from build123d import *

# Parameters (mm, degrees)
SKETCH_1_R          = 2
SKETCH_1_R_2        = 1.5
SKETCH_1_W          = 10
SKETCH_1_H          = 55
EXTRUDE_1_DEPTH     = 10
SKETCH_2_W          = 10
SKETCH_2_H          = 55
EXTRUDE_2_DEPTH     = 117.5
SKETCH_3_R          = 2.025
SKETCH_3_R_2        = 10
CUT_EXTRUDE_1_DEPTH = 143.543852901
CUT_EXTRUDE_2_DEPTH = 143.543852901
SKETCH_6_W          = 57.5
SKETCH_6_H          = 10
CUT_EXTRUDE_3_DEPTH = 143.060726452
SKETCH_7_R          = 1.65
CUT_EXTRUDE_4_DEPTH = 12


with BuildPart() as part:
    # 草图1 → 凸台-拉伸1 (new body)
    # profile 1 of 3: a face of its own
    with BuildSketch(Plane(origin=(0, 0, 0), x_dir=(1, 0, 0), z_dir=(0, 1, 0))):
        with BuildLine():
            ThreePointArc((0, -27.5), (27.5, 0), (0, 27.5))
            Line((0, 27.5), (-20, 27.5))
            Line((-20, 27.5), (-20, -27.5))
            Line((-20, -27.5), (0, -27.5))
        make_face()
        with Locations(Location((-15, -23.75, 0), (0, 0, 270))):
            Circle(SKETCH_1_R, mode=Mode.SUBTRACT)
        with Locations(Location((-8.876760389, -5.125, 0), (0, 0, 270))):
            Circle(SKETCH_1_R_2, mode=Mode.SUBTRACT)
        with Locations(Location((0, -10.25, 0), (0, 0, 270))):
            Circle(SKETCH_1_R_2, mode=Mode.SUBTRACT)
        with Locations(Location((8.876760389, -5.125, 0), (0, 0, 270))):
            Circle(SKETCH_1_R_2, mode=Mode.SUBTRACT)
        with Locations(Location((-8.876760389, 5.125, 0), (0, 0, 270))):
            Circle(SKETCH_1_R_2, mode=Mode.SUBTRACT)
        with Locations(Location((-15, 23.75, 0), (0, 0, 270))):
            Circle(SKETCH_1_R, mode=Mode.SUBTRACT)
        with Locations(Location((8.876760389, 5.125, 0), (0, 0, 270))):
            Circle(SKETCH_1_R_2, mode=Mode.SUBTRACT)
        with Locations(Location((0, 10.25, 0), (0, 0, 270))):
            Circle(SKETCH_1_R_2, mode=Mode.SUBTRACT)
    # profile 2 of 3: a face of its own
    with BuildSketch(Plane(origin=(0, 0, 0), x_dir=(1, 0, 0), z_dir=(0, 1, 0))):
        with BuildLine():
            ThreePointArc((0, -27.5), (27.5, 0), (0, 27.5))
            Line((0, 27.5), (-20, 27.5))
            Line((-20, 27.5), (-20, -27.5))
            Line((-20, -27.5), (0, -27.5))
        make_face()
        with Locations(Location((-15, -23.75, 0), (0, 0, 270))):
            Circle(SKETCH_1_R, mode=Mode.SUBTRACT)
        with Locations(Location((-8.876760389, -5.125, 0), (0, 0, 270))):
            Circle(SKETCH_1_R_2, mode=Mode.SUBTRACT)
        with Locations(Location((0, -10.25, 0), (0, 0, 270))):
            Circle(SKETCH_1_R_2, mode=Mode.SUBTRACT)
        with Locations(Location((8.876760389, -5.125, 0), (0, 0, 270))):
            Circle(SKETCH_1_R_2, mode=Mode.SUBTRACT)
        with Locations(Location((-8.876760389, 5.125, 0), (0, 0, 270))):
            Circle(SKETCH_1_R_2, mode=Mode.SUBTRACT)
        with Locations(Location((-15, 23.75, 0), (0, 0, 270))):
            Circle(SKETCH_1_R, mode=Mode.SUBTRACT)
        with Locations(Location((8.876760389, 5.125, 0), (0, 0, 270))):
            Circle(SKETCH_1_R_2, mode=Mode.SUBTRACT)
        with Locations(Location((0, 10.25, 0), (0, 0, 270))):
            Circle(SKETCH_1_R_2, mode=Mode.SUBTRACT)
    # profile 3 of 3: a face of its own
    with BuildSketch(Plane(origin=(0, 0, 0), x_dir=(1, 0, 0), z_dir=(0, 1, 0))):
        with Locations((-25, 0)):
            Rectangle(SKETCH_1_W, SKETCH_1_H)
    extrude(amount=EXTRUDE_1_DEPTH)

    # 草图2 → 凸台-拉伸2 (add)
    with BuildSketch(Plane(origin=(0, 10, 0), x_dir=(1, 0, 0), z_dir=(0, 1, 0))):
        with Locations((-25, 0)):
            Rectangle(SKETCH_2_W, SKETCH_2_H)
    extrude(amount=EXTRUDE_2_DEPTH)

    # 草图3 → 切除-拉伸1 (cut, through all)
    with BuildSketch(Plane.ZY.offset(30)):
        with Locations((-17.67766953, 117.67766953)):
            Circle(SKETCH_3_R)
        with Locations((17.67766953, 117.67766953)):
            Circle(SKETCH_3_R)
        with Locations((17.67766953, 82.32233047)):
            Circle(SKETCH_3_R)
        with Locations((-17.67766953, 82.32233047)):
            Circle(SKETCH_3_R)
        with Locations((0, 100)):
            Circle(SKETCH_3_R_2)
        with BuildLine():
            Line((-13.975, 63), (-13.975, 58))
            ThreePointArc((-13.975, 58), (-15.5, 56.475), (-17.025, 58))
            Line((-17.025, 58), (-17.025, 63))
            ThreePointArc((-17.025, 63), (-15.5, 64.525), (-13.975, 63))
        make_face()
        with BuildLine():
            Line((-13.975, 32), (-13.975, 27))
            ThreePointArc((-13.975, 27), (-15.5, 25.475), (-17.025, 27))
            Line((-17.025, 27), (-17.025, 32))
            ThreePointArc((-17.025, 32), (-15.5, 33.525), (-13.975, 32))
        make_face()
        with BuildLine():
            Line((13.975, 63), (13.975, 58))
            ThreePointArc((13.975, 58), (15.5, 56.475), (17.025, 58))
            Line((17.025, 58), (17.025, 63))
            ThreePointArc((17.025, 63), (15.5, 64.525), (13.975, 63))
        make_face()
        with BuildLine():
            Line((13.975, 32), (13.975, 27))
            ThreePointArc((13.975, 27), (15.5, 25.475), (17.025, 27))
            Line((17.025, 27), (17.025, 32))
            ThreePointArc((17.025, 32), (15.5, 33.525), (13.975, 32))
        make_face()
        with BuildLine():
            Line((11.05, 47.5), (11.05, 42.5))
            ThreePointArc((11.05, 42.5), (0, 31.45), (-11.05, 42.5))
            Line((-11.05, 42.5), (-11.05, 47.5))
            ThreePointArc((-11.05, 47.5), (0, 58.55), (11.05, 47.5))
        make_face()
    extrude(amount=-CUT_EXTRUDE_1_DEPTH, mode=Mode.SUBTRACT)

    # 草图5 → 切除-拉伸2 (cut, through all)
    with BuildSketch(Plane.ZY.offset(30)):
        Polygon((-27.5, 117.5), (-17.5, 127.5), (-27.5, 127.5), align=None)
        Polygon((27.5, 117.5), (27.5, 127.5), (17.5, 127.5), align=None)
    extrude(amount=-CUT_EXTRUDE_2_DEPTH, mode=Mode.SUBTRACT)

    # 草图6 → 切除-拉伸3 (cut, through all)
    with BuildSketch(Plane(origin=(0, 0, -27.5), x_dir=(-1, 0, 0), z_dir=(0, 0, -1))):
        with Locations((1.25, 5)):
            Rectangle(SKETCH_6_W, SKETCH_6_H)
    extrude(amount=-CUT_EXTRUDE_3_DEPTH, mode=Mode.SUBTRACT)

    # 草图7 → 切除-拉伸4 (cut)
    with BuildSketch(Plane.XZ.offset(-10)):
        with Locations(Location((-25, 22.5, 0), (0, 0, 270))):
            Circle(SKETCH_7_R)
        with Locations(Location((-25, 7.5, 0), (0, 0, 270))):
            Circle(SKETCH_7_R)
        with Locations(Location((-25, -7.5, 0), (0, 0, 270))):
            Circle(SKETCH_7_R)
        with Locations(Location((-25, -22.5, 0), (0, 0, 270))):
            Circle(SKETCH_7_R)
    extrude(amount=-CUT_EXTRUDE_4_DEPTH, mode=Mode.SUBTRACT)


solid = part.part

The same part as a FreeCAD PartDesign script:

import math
import FreeCAD as App
import Part
import Sketcher
Q = App.Units.Quantity

doc = App.newDocument("Part")
body = doc.addObject("PartDesign::Body", "Body")

# Sketch on XZ plane
sketch1 = doc.addObject("Sketcher::SketchObject", "Sketch")
body.addObject(sketch1)
sketch1.AttachmentSupport = (doc.XZ_Plane, [""])
sketch1.MapMode = "FlatFace"
sketch1.addGeometry(Part.ArcOfCircle(Part.Circle(App.Vector(0, 0, 0), App.Vector(0, 0, 1), 27.5), math.radians(-90), math.radians(90)), False)
sketch1.addGeometry(Part.LineSegment(App.Vector(0, -27.5, 0), App.Vector(-30, -27.5, 0)), False)
sketch1.addGeometry(Part.LineSegment(App.Vector(-30, -27.5, 0), App.Vector(-30, 27.5, 0)), False)
sketch1.addGeometry(Part.LineSegment(App.Vector(-30, 27.5, 0), App.Vector(0, 27.5, 0)), False)
sketch1.addGeometry(Part.Circle(App.Vector(-15, 23.8, 0), App.Vector(0, 0, 1), 2), False)
sketch1.addGeometry(Part.Circle(App.Vector(-8.9, 5.1, 0), App.Vector(0, 0, 1), 1.5), False)
sketch1.addGeometry(Part.Circle(App.Vector(0, 10.2, 0), App.Vector(0, 0, 1), 1.5), False)
sketch1.addGeometry(Part.Circle(App.Vector(8.9, 5.1, 0), App.Vector(0, 0, 1), 1.5), False)
sketch1.addGeometry(Part.Circle(App.Vector(-8.9, -5.1, 0), App.Vector(0, 0, 1), 1.5), False)
sketch1.addGeometry(Part.Circle(App.Vector(-15, -23.8, 0), App.Vector(0, 0, 1), 2), False)
sketch1.addGeometry(Part.Circle(App.Vector(0, -10.2, 0), App.Vector(0, 0, 1), 1.5), False)
sketch1.addGeometry(Part.Circle(App.Vector(8.9, -5.1, 0), App.Vector(0, 0, 1), 1.5), False)
sketch1.addConstraint(Sketcher.Constraint("Tangent", 0, 1, 1, 1))
sketch1.addConstraint(Sketcher.Constraint("Coincident", 1, 2, 2, 1))
sketch1.addConstraint(Sketcher.Constraint("Coincident", 2, 2, 3, 1))
sketch1.addConstraint(Sketcher.Constraint("Tangent", 3, 2, 0, 2))
sketch1.addConstraint(Sketcher.Constraint("Horizontal", 1))
sketch1.addConstraint(Sketcher.Constraint("Vertical", 2))
sketch1.addConstraint(Sketcher.Constraint("Horizontal", 3))
sketch1.addConstraint(Sketcher.Constraint("Coincident", 0, 3, -1, 1))
sketch1.addConstraint(Sketcher.Constraint("Equal", 5, 6))
sketch1.addConstraint(Sketcher.Constraint("Equal", 6, 7))
sketch1.addConstraint(Sketcher.Constraint("Equal", 7, 8))
sketch1.addConstraint(Sketcher.Constraint("Equal", 4, 9))
sketch1.addConstraint(Sketcher.Constraint("Equal", 8, 10))
sketch1.addConstraint(Sketcher.Constraint("Equal", 10, 11))
sketch1.addConstraint(Sketcher.Constraint("Symmetric", 7, 3, 8, 3, -1, 1))
sketch1.addConstraint(Sketcher.Constraint("Symmetric", 6, 3, 10, 3, -1, 1))
sketch1.addConstraint(Sketcher.Constraint("Symmetric", 5, 3, 11, 3, -1, 1))
sketch1.addConstraint(Sketcher.Constraint("Symmetric", 5, 3, 7, 3, -2))
sketch1.addConstraint(Sketcher.Constraint("Symmetric", 4, 3, 9, 3, -1))
sketch1.addConstraint(Sketcher.Constraint("PointOnObject", 6, 3, -2))
sketch1.addConstraint(Sketcher.Constraint("Diameter", 4, Q("4 mm")))
sketch1.addConstraint(Sketcher.Constraint("Diameter", 5, Q("3 mm")))
sketch1.addConstraint(Sketcher.Constraint("Radius", 0, Q("27.5 mm")))
sketch1.addConstraint(Sketcher.Constraint("DistanceX", 1, 2, 1, 1, Q("30 mm")))
sketch1.addConstraint(Sketcher.Constraint("DistanceX", 4, 3, -1, 1, Q("15 mm")))
sketch1.addConstraint(Sketcher.Constraint("DistanceY", 9, 3, 6, 3, Q("34 mm")))
sketch1.addConstraint(Sketcher.Constraint("DistanceY", 6, 3, 4, 3, Q("13.5 mm")))
sketch1.addConstraint(Sketcher.Constraint("DistanceY", 8, 3, 5, 3, Q("10.25 mm")))
sketch1.addConstraint(Sketcher.Constraint("DistanceX", 5, 3, -1, 1, Q("8.87676 mm")))
pad1 = doc.addObject("PartDesign::Pad", "Pad")
body.addObject(pad1)
pad1.Profile = sketch1
pad1.Length = 10
pad1.Reversed = True

# Sketch on XZ plane
sketch2 = doc.addObject("Sketcher::SketchObject", "Sketch001")
body.addObject(sketch2)
sketch2.AttachmentSupport = (doc.XZ_Plane, [""])
sketch2.MapMode = "FlatFace"
sketch2.AttachmentOffset = App.Placement(App.Vector(0, 0, -10), App.Rotation())
sketch2.addGeometry(Part.LineSegment(App.Vector(-30, -28, 0), App.Vector(-30, 28, 0)), False)
sketch2.addGeometry(Part.LineSegment(App.Vector(-30, 28, 0), App.Vector(-20, 28, 0)), False)
sketch2.addGeometry(Part.LineSegment(App.Vector(-20, 28, 0), App.Vector(-20, -28, 0)), False)
sketch2.addGeometry(Part.LineSegment(App.Vector(-20, -28, 0), App.Vector(-30, -28, 0)), False)
sketch2.addConstraint(Sketcher.Constraint("Coincident", 0, 2, 1, 1))
sketch2.addConstraint(Sketcher.Constraint("Coincident", 1, 2, 2, 1))
sketch2.addConstraint(Sketcher.Constraint("Coincident", 2, 2, 3, 1))
sketch2.addConstraint(Sketcher.Constraint("Coincident", 3, 2, 0, 1))
sketch2.addConstraint(Sketcher.Constraint("Vertical", 0))
sketch2.addConstraint(Sketcher.Constraint("Horizontal", 1))
sketch2.addConstraint(Sketcher.Constraint("Vertical", 2))
sketch2.addConstraint(Sketcher.Constraint("Horizontal", 3))
sketch2.addConstraint(Sketcher.Constraint("DistanceX", 1, 1, 1, 2, Q("10 mm")))
sketch2.addConstraint(Sketcher.Constraint("DistanceY", 0, 1, 0, 2, Q("55 mm")))
sketch2.addConstraint(Sketcher.Constraint("DistanceX", 0, 2, -1, 1, Q("30 mm")))
sketch2.addConstraint(Sketcher.Constraint("DistanceY", -1, 1, 0, 2, Q("27.5 mm")))
pad2 = doc.addObject("PartDesign::Pad", "Pad001")
body.addObject(pad2)
pad2.Profile = sketch2
pad2.Length = 117.5
pad2.Reversed = True

# Sketch on YZ plane
sketch3 = doc.addObject("Sketcher::SketchObject", "Sketch002")
body.addObject(sketch3)
sketch3.AttachmentSupport = (doc.YZ_Plane, [""])
sketch3.MapMode = "FlatFace"
sketch3.AttachmentOffset = App.Placement(App.Vector(0, 0, -30), App.Rotation())
sketch3.addGeometry(Part.Circle(App.Vector(117.7, -17.7, 0), App.Vector(0, 0, 1), 2), False)
sketch3.addGeometry(Part.Circle(App.Vector(117.7, 17.7, 0), App.Vector(0, 0, 1), 2), False)
sketch3.addGeometry(Part.Circle(App.Vector(82.3, 17.7, 0), App.Vector(0, 0, 1), 2), False)
sketch3.addGeometry(Part.Circle(App.Vector(82.3, -17.7, 0), App.Vector(0, 0, 1), 2), False)
sketch3.addGeometry(Part.Circle(App.Vector(100, 0, 0), App.Vector(0, 0, 1), 10), False)
sketch3.addGeometry(Part.LineSegment(App.Vector(58, -14, 0), App.Vector(63, -14, 0)), False)
sketch3.addGeometry(Part.ArcOfCircle(Part.Circle(App.Vector(63, -15.5, 0), App.Vector(0, 0, 1), 1.5), math.radians(-90), math.radians(90)), False)
sketch3.addGeometry(Part.LineSegment(App.Vector(63, -17, 0), App.Vector(58, -17, 0)), False)
sketch3.addGeometry(Part.ArcOfCircle(Part.Circle(App.Vector(58, -15.5, 0), App.Vector(0, 0, 1), 1.5), math.radians(90), math.radians(270)), False)
sketch3.addGeometry(Part.LineSegment(App.Vector(27, -14, 0), App.Vector(32, -14, 0)), False)
sketch3.addGeometry(Part.ArcOfCircle(Part.Circle(App.Vector(32, -15.5, 0), App.Vector(0, 0, 1), 1.5), math.radians(-90), math.radians(90)), False)
sketch3.addGeometry(Part.LineSegment(App.Vector(32, -17, 0), App.Vector(27, -17, 0)), False)
sketch3.addGeometry(Part.ArcOfCircle(Part.Circle(App.Vector(27, -15.5, 0), App.Vector(0, 0, 1), 1.5), math.radians(90), math.radians(270)), False)
sketch3.addGeometry(Part.LineSegment(App.Vector(63, 14, 0), App.Vector(58, 14, 0)), False)
sketch3.addGeometry(Part.ArcOfCircle(Part.Circle(App.Vector(58, 15.5, 0), App.Vector(0, 0, 1), 1.5), math.radians(90), math.radians(270)), False)
sketch3.addGeometry(Part.LineSegment(App.Vector(58, 17, 0), App.Vector(63, 17, 0)), False)
sketch3.addGeometry(Part.ArcOfCircle(Part.Circle(App.Vector(63, 15.5, 0), App.Vector(0, 0, 1), 1.5), math.radians(-90), math.radians(90)), False)
sketch3.addGeometry(Part.LineSegment(App.Vector(32, 14, 0), App.Vector(27, 14, 0)), False)
sketch3.addGeometry(Part.ArcOfCircle(Part.Circle(App.Vector(27, 15.5, 0), App.Vector(0, 0, 1), 1.5), math.radians(90), math.radians(270)), False)
sketch3.addGeometry(Part.LineSegment(App.Vector(27, 17, 0), App.Vector(32, 17, 0)), False)
sketch3.addGeometry(Part.ArcOfCircle(Part.Circle(App.Vector(32, 15.5, 0), App.Vector(0, 0, 1), 1.5), math.radians(-90), math.radians(90)), False)
sketch3.addGeometry(Part.LineSegment(App.Vector(42.5, 11.1, 0), App.Vector(47.5, 11.1, 0)), False)
sketch3.addGeometry(Part.ArcOfCircle(Part.Circle(App.Vector(47.5, 0, 0), App.Vector(0, 0, 1), 11.1), math.radians(-90), math.radians(90)), False)
sketch3.addGeometry(Part.LineSegment(App.Vector(47.5, -11.1, 0), App.Vector(42.5, -11.1, 0)), False)
sketch3.addGeometry(Part.ArcOfCircle(Part.Circle(App.Vector(42.5, 0, 0), App.Vector(0, 0, 1), 11.1), math.radians(90), math.radians(270)), False)
sketch3.addConstraint(Sketcher.Constraint("Tangent", 5, 2, 6, 2))
sketch3.addConstraint(Sketcher.Constraint("Tangent", 6, 1, 7, 1))
sketch3.addConstraint(Sketcher.Constraint("Tangent", 7, 2, 8, 2))
sketch3.addConstraint(Sketcher.Constraint("Tangent", 8, 1, 5, 1))
sketch3.addConstraint(Sketcher.Constraint("Tangent", 9, 2, 10, 2))
sketch3.addConstraint(Sketcher.Constraint("Tangent", 10, 1, 11, 1))
sketch3.addConstraint(Sketcher.Constraint("Tangent", 11, 2, 12, 2))
sketch3.addConstraint(Sketcher.Constraint("Tangent", 12, 1, 9, 1))
sketch3.addConstraint(Sketcher.Constraint("Tangent", 13, 2, 14, 2))
sketch3.addConstraint(Sketcher.Constraint("Tangent", 14, 1, 15, 1))
sketch3.addConstraint(Sketcher.Constraint("Tangent", 15, 2, 16, 2))
sketch3.addConstraint(Sketcher.Constraint("Tangent", 16, 1, 13, 1))
sketch3.addConstraint(Sketcher.Constraint("Tangent", 17, 2, 18, 2))
sketch3.addConstraint(Sketcher.Constraint("Tangent", 18, 1, 19, 1))
sketch3.addConstraint(Sketcher.Constraint("Tangent", 19, 2, 20, 2))
sketch3.addConstraint(Sketcher.Constraint("Tangent", 20, 1, 17, 1))
sketch3.addConstraint(Sketcher.Constraint("Tangent", 21, 2, 22, 2))
sketch3.addConstraint(Sketcher.Constraint("Tangent", 22, 1, 23, 1))
sketch3.addConstraint(Sketcher.Constraint("Tangent", 23, 2, 24, 2))
sketch3.addConstraint(Sketcher.Constraint("Tangent", 24, 1, 21, 1))
sketch3.addConstraint(Sketcher.Constraint("Horizontal", 5))
sketch3.addConstraint(Sketcher.Constraint("Horizontal", 7))
sketch3.addConstraint(Sketcher.Constraint("Horizontal", 9))
sketch3.addConstraint(Sketcher.Constraint("Horizontal", 11))
sketch3.addConstraint(Sketcher.Constraint("Horizontal", 13))
sketch3.addConstraint(Sketcher.Constraint("Horizontal", 15))
sketch3.addConstraint(Sketcher.Constraint("Horizontal", 17))
sketch3.addConstraint(Sketcher.Constraint("Horizontal", 19))
sketch3.addConstraint(Sketcher.Constraint("Horizontal", 21))
sketch3.addConstraint(Sketcher.Constraint("Horizontal", 23))
sketch3.addConstraint(Sketcher.Constraint("Equal", 0, 1))
sketch3.addConstraint(Sketcher.Constraint("Equal", 1, 2))
sketch3.addConstraint(Sketcher.Constraint("Equal", 2, 3))
sketch3.addConstraint(Sketcher.Constraint("Equal", 8, 10))
sketch3.addConstraint(Sketcher.Constraint("Equal", 12, 14))
sketch3.addConstraint(Sketcher.Constraint("Equal", 16, 18))
sketch3.addConstraint(Sketcher.Constraint("Symmetric", 0, 3, 1, 3, -1))
sketch3.addConstraint(Sketcher.Constraint("Symmetric", 2, 3, 3, 3, -1))
sketch3.addConstraint(Sketcher.Constraint("Symmetric", 8, 3, 14, 3, -1))
sketch3.addConstraint(Sketcher.Constraint("Symmetric", 12, 3, 18, 3, -1))
sketch3.addConstraint(Sketcher.Constraint("PointOnObject", 4, 3, -1))
sketch3.addConstraint(Sketcher.Constraint("PointOnObject", 22, 3, -1))
sketch3.addConstraint(Sketcher.Constraint("Horizontal", 1, 3, 2, 3))
sketch3.addConstraint(Sketcher.Constraint("Horizontal", 8, 3, 10, 3))
sketch3.addConstraint(Sketcher.Constraint("Vertical", 6, 3, 16, 3))
sketch3.addConstraint(Sketcher.Constraint("Vertical", 10, 3, 20, 3))
sketch3.addConstraint(Sketcher.Constraint("Equal", 7, 9))
sketch3.addConstraint(Sketcher.Constraint("Equal", 19, 21))
sketch3.addConstraint(Sketcher.Constraint("Diameter", 4, Q("20 mm")))
sketch3.addConstraint(Sketcher.Constraint("Diameter", 0, Q("4.05 mm")))
sketch3.addConstraint(Sketcher.Constraint("DistanceX", 5, 1, 5, 2, Q("5 mm")))
sketch3.addConstraint(Sketcher.Constraint("Radius", 22, Q("11.05 mm")))
sketch3.addConstraint(Sketcher.Constraint("DistanceX", -1, 1, 4, 3, Q("100 mm")))
sketch3.addConstraint(Sketcher.Constraint("DistanceX", -1, 1, 6, 3, Q("63 mm")))
sketch3.addConstraint(Sketcher.Constraint("DistanceX", -1, 1, 10, 3, Q("32 mm")))
sketch3.addConstraint(Sketcher.Constraint("Radius", 6, Q("1.525 mm")))
sketch3.addConstraint(Sketcher.Constraint("DistanceY", 8, 3, 14, 3, Q("31 mm")))
sketch3.addConstraint(Sketcher.Constraint("DistanceX", -1, 1, 22, 3, Q("47.5 mm")))
sketch3.addConstraint(Sketcher.Constraint("DistanceX", -1, 1, 0, 3, Q("117.67767 mm")))
sketch3.addConstraint(Sketcher.Constraint("DistanceY", 0, 3, -1, 1, Q("17.67767 mm")))
sketch3.addConstraint(Sketcher.Constraint("DistanceX", -1, 1, 2, 3, Q("82.32233 mm")))
pocket1 = doc.addObject("PartDesign::Pocket", "Pocket")
body.addObject(pocket1)
pocket1.Profile = sketch3
pocket1.Type = "ThroughAll"
pocket1.Reversed = True

# Sketch on YZ plane
sketch4 = doc.addObject("Sketcher::SketchObject", "Sketch003")
body.addObject(sketch4)
sketch4.AttachmentSupport = (doc.YZ_Plane, [""])
sketch4.MapMode = "FlatFace"
sketch4.AttachmentOffset = App.Placement(App.Vector(0, 0, -30), App.Rotation())
sketch4.addGeometry(Part.LineSegment(App.Vector(118, -28, 0), App.Vector(128, -18, 0)), False)
sketch4.addGeometry(Part.LineSegment(App.Vector(128, -18, 0), App.Vector(128, -28, 0)), False)
sketch4.addGeometry(Part.LineSegment(App.Vector(128, -28, 0), App.Vector(118, -28, 0)), False)
sketch4.addGeometry(Part.LineSegment(App.Vector(118, 28, 0), App.Vector(128, 28, 0)), False)
sketch4.addGeometry(Part.LineSegment(App.Vector(128, 28, 0), App.Vector(128, 18, 0)), False)
sketch4.addGeometry(Part.LineSegment(App.Vector(128, 18, 0), App.Vector(118, 28, 0)), False)
sketch4.addConstraint(Sketcher.Constraint("Coincident", 0, 2, 1, 1))
sketch4.addConstraint(Sketcher.Constraint("Coincident", 1, 2, 2, 1))
sketch4.addConstraint(Sketcher.Constraint("Coincident", 2, 2, 0, 1))
sketch4.addConstraint(Sketcher.Constraint("Coincident", 3, 2, 4, 1))
sketch4.addConstraint(Sketcher.Constraint("Coincident", 4, 2, 5, 1))
sketch4.addConstraint(Sketcher.Constraint("Coincident", 5, 2, 3, 1))
sketch4.addConstraint(Sketcher.Constraint("Vertical", 1))
sketch4.addConstraint(Sketcher.Constraint("Horizontal", 2))
sketch4.addConstraint(Sketcher.Constraint("Horizontal", 3))
sketch4.addConstraint(Sketcher.Constraint("Vertical", 4))
sketch4.addConstraint(Sketcher.Constraint("Symmetric", 1, 2, 3, 2, -1))
sketch4.addConstraint(Sketcher.Constraint("Perpendicular", 0, 5))
sketch4.addConstraint(Sketcher.Constraint("Vertical", 2, 2, 5, 2))
sketch4.addConstraint(Sketcher.Constraint("Equal", 3, 1))
sketch4.addConstraint(Sketcher.Constraint("DistanceX", 2, 2, 2, 1, Q("10 mm")))
sketch4.addConstraint(Sketcher.Constraint("DistanceY", 0, 2, 3, 2, Q("45 mm")))
sketch4.addConstraint(Sketcher.Constraint("DistanceX", -1, 1, 0, 2, Q("127.5 mm")))
pocket2 = doc.addObject("PartDesign::Pocket", "Pocket001")
body.addObject(pocket2)
pocket2.Profile = sketch4
pocket2.Type = "ThroughAll"
pocket2.Reversed = True

# Sketch on XY plane
sketch5 = doc.addObject("Sketcher::SketchObject", "Sketch004")
body.addObject(sketch5)
sketch5.AttachmentSupport = (doc.XY_Plane, [""])
sketch5.MapMode = "FlatFace"
sketch5.AttachmentOffset = App.Placement(App.Vector(0, 0, -27.5), App.Rotation())
sketch5.addGeometry(Part.LineSegment(App.Vector(28, 10, 0), App.Vector(28, 0, 0)), False)
sketch5.addGeometry(Part.LineSegment(App.Vector(28, 0, 0), App.Vector(-30, 0, 0)), False)
sketch5.addGeometry(Part.LineSegment(App.Vector(-30, 0, 0), App.Vector(-30, 10, 0)), False)
sketch5.addGeometry(Part.LineSegment(App.Vector(-30, 10, 0), App.Vector(28, 10, 0)), False)
sketch5.addConstraint(Sketcher.Constraint("Coincident", 0, 2, 1, 1))
sketch5.addConstraint(Sketcher.Constraint("Coincident", 1, 2, 2, 1))
sketch5.addConstraint(Sketcher.Constraint("Coincident", 2, 2, 3, 1))
sketch5.addConstraint(Sketcher.Constraint("Coincident", 3, 2, 0, 1))
sketch5.addConstraint(Sketcher.Constraint("Vertical", 0))
sketch5.addConstraint(Sketcher.Constraint("Horizontal", 1))
sketch5.addConstraint(Sketcher.Constraint("Vertical", 2))
sketch5.addConstraint(Sketcher.Constraint("Horizontal", 3))
sketch5.addConstraint(Sketcher.Constraint("PointOnObject", 0, 2, -1))
sketch5.addConstraint(Sketcher.Constraint("DistanceY", 0, 2, 0, 1, Q("10 mm")))
sketch5.addConstraint(Sketcher.Constraint("DistanceX", 1, 2, 1, 1, Q("57.5 mm")))
sketch5.addConstraint(Sketcher.Constraint("DistanceX", 1, 2, -1, 1, Q("30 mm")))
pocket3 = doc.addObject("PartDesign::Pocket", "Pocket002")
body.addObject(pocket3)
pocket3.Profile = sketch5
pocket3.Type = "ThroughAll"
pocket3.Reversed = True

# Sketch on XZ plane
sketch6 = doc.addObject("Sketcher::SketchObject", "Sketch005")
body.addObject(sketch6)
sketch6.AttachmentSupport = (doc.XZ_Plane, [""])
sketch6.MapMode = "FlatFace"
sketch6.AttachmentOffset = App.Placement(App.Vector(0, 0, -10), App.Rotation())
sketch6.addGeometry(Part.Circle(App.Vector(-25, 22.5, 0), App.Vector(0, 0, 1), 1.6), False)
sketch6.addGeometry(Part.Circle(App.Vector(-25, 7.5, 0), App.Vector(0, 0, 1), 1.6), False)
sketch6.addGeometry(Part.Circle(App.Vector(-25, -7.5, 0), App.Vector(0, 0, 1), 1.6), False)
sketch6.addGeometry(Part.Circle(App.Vector(-25, -22.5, 0), App.Vector(0, 0, 1), 1.6), False)
sketch6.addConstraint(Sketcher.Constraint("Equal", 0, 1))
sketch6.addConstraint(Sketcher.Constraint("Equal", 1, 2))
sketch6.addConstraint(Sketcher.Constraint("Equal", 2, 3))
sketch6.addConstraint(Sketcher.Constraint("Symmetric", 1, 3, 2, 3, -1))
sketch6.addConstraint(Sketcher.Constraint("Symmetric", 0, 3, 3, 3, -1))
sketch6.addConstraint(Sketcher.Constraint("Vertical", 0, 3, 1, 3))
sketch6.addConstraint(Sketcher.Constraint("Diameter", 0, Q("3.3 mm")))
sketch6.addConstraint(Sketcher.Constraint("DistanceX", 0, 3, -1, 1, Q("25 mm")))
sketch6.addConstraint(Sketcher.Constraint("DistanceY", 1, 3, 0, 3, Q("15 mm")))
sketch6.addConstraint(Sketcher.Constraint("DistanceY", 2, 3, 1, 3, Q("15 mm")))
pocket4 = doc.addObject("PartDesign::Pocket", "Pocket003")
body.addObject(pocket4)
pocket4.Profile = sketch6
pocket4.Length = 12

doc.recompute()
